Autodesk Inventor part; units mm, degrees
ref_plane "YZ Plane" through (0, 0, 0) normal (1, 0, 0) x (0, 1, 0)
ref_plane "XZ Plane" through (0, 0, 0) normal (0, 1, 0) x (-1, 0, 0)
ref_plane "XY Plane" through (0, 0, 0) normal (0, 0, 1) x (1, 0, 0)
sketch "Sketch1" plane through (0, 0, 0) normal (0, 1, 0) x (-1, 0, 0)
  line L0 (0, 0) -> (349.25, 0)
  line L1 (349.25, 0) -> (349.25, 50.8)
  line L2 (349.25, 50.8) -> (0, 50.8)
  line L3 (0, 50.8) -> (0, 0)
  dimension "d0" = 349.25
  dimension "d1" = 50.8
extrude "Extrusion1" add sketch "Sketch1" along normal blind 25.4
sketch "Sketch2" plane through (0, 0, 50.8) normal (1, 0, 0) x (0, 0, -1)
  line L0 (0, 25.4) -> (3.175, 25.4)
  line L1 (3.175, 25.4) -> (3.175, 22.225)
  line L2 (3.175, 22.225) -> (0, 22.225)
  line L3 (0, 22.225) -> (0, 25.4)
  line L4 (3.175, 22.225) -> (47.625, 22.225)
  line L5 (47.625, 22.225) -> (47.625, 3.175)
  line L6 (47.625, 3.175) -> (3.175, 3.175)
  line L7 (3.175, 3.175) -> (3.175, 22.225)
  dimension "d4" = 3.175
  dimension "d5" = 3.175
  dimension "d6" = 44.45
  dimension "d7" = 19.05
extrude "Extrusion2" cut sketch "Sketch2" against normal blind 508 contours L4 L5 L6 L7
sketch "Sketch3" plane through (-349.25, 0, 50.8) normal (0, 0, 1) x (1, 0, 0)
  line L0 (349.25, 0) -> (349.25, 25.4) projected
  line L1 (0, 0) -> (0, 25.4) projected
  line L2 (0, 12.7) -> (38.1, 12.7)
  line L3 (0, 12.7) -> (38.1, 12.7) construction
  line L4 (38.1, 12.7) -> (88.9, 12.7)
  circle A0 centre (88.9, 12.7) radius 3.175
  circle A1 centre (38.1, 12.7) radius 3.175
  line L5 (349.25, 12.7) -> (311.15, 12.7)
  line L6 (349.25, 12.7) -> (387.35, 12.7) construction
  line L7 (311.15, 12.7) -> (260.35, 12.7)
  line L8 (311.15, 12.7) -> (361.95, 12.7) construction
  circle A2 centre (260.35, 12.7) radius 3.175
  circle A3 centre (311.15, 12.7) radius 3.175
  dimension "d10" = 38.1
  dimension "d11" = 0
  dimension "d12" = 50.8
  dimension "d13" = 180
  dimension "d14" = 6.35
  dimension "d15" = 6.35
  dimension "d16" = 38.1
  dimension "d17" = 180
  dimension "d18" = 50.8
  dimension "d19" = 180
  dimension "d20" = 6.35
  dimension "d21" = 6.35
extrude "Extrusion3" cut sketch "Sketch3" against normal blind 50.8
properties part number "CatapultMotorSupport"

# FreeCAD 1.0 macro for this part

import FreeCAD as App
import Part
import Sketcher
from FreeCAD import Vector
Q = App.Units.Quantity


def add_polygon(sketch, points):
    """Adds a closed chain of lines whose ends are joined by coincident constraints."""
    first, n = sketch.GeometryCount, len(points)
    for a, b in zip(points, points[1:] + points[:1]):
        sketch.addGeometry(Part.LineSegment(App.Vector(*a, 0), App.Vector(*b, 0)), False)
    for i in range(n):
        sketch.addConstraint(Sketcher.Constraint("Coincident", first + i, 2, first + (i + 1) % n, 1))

doc = App.newDocument("Part")
params = doc.addObject("Spreadsheet::Sheet", "Params")
for row, (alias, value) in enumerate([
    ("sketch1_height", "2 in"),
    ("sketch1_width", "13.75 in"),
    ("pad1_length", "1 in"),
    ("sketch2_width", "0.75 in"),
    ("sketch2_height", "1.75 in"),
    ("pocket1_length", "20 in"),
    ("sketch3_diameter", "0.25 in"),
    ("pocket2_length", "2 in"),
], start=1):
    params.set(f"A{row}", alias)
    params.set(f"B{row}", "=" + value)
    params.setAlias(f"B{row}", alias)

body = doc.addObject("PartDesign::Body", "Body")

# Sketch on XZ plane
sketch1 = doc.addObject("Sketcher::SketchObject", "Sketch")
body.addObject(sketch1)
sketch1.AttachmentSupport = (doc.XZ_Plane, [""])
sketch1.MapMode = "FlatFace"
add_polygon(sketch1, [(0, 51), (0, 0), (-349, 0), (-349, 51)])  # lines 0-3
sketch1.addConstraint(Sketcher.Constraint("Vertical", 0))
sketch1.addConstraint(Sketcher.Constraint("Horizontal", 1))
sketch1.addConstraint(Sketcher.Constraint("Vertical", 2))
sketch1.addConstraint(Sketcher.Constraint("Horizontal", 3))
sketch1.addConstraint(Sketcher.Constraint("Coincident", 0, 2, -1, 1))
sketch1.addConstraint(Sketcher.Constraint("DistanceY", 0, 2, 0, 1, Q("2 in")))
sketch1.addConstraint(Sketcher.Constraint("DistanceX", 1, 2, 1, 1, Q("13.75 in")))
sketch1.setExpression("Constraints[9]", "Params.sketch1_height")
sketch1.setExpression("Constraints[10]", "Params.sketch1_width")
pad1 = doc.addObject("PartDesign::Pad", "Pad")
body.addObject(pad1)
pad1.Profile = sketch1
pad1.setExpression("Length", "Params.pad1_length")
pad1.Reversed = True

# Sketch on YZ plane
sketch2 = doc.addObject("Sketcher::SketchObject", "Sketch001")
body.addObject(sketch2)
sketch2.AttachmentSupport = (doc.YZ_Plane, [""])
sketch2.MapMode = "FlatFace"
add_polygon(sketch2, [(22, 3), (22, 48), (3, 48), (3, 3)])  # lines 0-3
sketch2.addConstraint(Sketcher.Constraint("Vertical", 0))
sketch2.addConstraint(Sketcher.Constraint("Horizontal", 1))
sketch2.addConstraint(Sketcher.Constraint("Vertical", 2))
sketch2.addConstraint(Sketcher.Constraint("Horizontal", 3))
sketch2.addConstraint(Sketcher.Constraint("DistanceX", 1, 2, 1, 1, Q("0.75 in")))
sketch2.addConstraint(Sketcher.Constraint("DistanceY", 0, 1, 0, 2, Q("1.75 in")))
sketch2.addConstraint(Sketcher.Constraint("DistanceX", -1, 1, 1, 2, Q("0.125 in")))
sketch2.addConstraint(Sketcher.Constraint("DistanceY", -1, 1, 2, 2, Q("0.125 in")))
sketch2.setExpression("Constraints[8]", "Params.sketch2_width")
sketch2.setExpression("Constraints[9]", "Params.sketch2_height")
pocket1 = doc.addObject("PartDesign::Pocket", "Pocket")
body.addObject(pocket1)
pocket1.Profile = sketch2
pocket1.setExpression("Length", "Params.pocket1_length")

# Sketch on XY plane
sketch3 = doc.addObject("Sketcher::SketchObject", "Sketch002")
body.addObject(sketch3)
sketch3.AttachmentSupport = (doc.XY_Plane, [""])
sketch3.MapMode = "FlatFace"
sketch3.AttachmentOffset = App.Placement(Vector(0, 0, 2 * 25.4), App.Rotation())
sketch3.addGeometry(Part.Circle(Vector(-311.1, 12.7, 0), Vector(0, 0, 1), 3.2), False)
sketch3.addGeometry(Part.Circle(Vector(-260.4, 12.7, 0), Vector(0, 0, 1), 3.2), False)
sketch3.addGeometry(Part.Circle(Vector(-38.1, 12.7, 0), Vector(0, 0, 1), 3.2), False)
sketch3.addGeometry(Part.Circle(Vector(-88.9, 12.7, 0), Vector(0, 0, 1), 3.2), False)
sketch3.addConstraint(Sketcher.Constraint("Equal", 0, 1))
sketch3.addConstraint(Sketcher.Constraint("Equal", 1, 2))
sketch3.addConstraint(Sketcher.Constraint("Equal", 2, 3))
sketch3.addConstraint(Sketcher.Constraint("Horizontal", 0, 3, 1, 3))
sketch3.addConstraint(Sketcher.Constraint("Horizontal", 1, 3, 2, 3))
sketch3.addConstraint(Sketcher.Constraint("Horizontal", 2, 3, 3, 3))
sketch3.addConstraint(Sketcher.Constraint("Diameter", 0, Q("0.25 in")))
sketch3.addConstraint(Sketcher.Constraint("DistanceX", 0, 3, 1, 3, Q("2 in")))
sketch3.addConstraint(Sketcher.Constraint("DistanceX", 3, 3, 2, 3, Q("2 in")))
sketch3.addConstraint(Sketcher.Constraint("DistanceX", 2, 3, -1, 1, Q("1.5 in")))
sketch3.addConstraint(Sketcher.Constraint("DistanceY", -1, 1, 0, 3, Q("0.5 in")))
sketch3.addConstraint(Sketcher.Constraint("DistanceX", 0, 3, -1, 1, Q("12.25 in")))
sketch3.setExpression("Constraints[6]", "Params.sketch3_diameter")
pocket2 = doc.addObject("PartDesign::Pocket", "Pocket001")
body.addObject(pocket2)
pocket2.Profile = sketch3
pocket2.setExpression("Length", "Params.pocket2_length")

doc.recompute()
